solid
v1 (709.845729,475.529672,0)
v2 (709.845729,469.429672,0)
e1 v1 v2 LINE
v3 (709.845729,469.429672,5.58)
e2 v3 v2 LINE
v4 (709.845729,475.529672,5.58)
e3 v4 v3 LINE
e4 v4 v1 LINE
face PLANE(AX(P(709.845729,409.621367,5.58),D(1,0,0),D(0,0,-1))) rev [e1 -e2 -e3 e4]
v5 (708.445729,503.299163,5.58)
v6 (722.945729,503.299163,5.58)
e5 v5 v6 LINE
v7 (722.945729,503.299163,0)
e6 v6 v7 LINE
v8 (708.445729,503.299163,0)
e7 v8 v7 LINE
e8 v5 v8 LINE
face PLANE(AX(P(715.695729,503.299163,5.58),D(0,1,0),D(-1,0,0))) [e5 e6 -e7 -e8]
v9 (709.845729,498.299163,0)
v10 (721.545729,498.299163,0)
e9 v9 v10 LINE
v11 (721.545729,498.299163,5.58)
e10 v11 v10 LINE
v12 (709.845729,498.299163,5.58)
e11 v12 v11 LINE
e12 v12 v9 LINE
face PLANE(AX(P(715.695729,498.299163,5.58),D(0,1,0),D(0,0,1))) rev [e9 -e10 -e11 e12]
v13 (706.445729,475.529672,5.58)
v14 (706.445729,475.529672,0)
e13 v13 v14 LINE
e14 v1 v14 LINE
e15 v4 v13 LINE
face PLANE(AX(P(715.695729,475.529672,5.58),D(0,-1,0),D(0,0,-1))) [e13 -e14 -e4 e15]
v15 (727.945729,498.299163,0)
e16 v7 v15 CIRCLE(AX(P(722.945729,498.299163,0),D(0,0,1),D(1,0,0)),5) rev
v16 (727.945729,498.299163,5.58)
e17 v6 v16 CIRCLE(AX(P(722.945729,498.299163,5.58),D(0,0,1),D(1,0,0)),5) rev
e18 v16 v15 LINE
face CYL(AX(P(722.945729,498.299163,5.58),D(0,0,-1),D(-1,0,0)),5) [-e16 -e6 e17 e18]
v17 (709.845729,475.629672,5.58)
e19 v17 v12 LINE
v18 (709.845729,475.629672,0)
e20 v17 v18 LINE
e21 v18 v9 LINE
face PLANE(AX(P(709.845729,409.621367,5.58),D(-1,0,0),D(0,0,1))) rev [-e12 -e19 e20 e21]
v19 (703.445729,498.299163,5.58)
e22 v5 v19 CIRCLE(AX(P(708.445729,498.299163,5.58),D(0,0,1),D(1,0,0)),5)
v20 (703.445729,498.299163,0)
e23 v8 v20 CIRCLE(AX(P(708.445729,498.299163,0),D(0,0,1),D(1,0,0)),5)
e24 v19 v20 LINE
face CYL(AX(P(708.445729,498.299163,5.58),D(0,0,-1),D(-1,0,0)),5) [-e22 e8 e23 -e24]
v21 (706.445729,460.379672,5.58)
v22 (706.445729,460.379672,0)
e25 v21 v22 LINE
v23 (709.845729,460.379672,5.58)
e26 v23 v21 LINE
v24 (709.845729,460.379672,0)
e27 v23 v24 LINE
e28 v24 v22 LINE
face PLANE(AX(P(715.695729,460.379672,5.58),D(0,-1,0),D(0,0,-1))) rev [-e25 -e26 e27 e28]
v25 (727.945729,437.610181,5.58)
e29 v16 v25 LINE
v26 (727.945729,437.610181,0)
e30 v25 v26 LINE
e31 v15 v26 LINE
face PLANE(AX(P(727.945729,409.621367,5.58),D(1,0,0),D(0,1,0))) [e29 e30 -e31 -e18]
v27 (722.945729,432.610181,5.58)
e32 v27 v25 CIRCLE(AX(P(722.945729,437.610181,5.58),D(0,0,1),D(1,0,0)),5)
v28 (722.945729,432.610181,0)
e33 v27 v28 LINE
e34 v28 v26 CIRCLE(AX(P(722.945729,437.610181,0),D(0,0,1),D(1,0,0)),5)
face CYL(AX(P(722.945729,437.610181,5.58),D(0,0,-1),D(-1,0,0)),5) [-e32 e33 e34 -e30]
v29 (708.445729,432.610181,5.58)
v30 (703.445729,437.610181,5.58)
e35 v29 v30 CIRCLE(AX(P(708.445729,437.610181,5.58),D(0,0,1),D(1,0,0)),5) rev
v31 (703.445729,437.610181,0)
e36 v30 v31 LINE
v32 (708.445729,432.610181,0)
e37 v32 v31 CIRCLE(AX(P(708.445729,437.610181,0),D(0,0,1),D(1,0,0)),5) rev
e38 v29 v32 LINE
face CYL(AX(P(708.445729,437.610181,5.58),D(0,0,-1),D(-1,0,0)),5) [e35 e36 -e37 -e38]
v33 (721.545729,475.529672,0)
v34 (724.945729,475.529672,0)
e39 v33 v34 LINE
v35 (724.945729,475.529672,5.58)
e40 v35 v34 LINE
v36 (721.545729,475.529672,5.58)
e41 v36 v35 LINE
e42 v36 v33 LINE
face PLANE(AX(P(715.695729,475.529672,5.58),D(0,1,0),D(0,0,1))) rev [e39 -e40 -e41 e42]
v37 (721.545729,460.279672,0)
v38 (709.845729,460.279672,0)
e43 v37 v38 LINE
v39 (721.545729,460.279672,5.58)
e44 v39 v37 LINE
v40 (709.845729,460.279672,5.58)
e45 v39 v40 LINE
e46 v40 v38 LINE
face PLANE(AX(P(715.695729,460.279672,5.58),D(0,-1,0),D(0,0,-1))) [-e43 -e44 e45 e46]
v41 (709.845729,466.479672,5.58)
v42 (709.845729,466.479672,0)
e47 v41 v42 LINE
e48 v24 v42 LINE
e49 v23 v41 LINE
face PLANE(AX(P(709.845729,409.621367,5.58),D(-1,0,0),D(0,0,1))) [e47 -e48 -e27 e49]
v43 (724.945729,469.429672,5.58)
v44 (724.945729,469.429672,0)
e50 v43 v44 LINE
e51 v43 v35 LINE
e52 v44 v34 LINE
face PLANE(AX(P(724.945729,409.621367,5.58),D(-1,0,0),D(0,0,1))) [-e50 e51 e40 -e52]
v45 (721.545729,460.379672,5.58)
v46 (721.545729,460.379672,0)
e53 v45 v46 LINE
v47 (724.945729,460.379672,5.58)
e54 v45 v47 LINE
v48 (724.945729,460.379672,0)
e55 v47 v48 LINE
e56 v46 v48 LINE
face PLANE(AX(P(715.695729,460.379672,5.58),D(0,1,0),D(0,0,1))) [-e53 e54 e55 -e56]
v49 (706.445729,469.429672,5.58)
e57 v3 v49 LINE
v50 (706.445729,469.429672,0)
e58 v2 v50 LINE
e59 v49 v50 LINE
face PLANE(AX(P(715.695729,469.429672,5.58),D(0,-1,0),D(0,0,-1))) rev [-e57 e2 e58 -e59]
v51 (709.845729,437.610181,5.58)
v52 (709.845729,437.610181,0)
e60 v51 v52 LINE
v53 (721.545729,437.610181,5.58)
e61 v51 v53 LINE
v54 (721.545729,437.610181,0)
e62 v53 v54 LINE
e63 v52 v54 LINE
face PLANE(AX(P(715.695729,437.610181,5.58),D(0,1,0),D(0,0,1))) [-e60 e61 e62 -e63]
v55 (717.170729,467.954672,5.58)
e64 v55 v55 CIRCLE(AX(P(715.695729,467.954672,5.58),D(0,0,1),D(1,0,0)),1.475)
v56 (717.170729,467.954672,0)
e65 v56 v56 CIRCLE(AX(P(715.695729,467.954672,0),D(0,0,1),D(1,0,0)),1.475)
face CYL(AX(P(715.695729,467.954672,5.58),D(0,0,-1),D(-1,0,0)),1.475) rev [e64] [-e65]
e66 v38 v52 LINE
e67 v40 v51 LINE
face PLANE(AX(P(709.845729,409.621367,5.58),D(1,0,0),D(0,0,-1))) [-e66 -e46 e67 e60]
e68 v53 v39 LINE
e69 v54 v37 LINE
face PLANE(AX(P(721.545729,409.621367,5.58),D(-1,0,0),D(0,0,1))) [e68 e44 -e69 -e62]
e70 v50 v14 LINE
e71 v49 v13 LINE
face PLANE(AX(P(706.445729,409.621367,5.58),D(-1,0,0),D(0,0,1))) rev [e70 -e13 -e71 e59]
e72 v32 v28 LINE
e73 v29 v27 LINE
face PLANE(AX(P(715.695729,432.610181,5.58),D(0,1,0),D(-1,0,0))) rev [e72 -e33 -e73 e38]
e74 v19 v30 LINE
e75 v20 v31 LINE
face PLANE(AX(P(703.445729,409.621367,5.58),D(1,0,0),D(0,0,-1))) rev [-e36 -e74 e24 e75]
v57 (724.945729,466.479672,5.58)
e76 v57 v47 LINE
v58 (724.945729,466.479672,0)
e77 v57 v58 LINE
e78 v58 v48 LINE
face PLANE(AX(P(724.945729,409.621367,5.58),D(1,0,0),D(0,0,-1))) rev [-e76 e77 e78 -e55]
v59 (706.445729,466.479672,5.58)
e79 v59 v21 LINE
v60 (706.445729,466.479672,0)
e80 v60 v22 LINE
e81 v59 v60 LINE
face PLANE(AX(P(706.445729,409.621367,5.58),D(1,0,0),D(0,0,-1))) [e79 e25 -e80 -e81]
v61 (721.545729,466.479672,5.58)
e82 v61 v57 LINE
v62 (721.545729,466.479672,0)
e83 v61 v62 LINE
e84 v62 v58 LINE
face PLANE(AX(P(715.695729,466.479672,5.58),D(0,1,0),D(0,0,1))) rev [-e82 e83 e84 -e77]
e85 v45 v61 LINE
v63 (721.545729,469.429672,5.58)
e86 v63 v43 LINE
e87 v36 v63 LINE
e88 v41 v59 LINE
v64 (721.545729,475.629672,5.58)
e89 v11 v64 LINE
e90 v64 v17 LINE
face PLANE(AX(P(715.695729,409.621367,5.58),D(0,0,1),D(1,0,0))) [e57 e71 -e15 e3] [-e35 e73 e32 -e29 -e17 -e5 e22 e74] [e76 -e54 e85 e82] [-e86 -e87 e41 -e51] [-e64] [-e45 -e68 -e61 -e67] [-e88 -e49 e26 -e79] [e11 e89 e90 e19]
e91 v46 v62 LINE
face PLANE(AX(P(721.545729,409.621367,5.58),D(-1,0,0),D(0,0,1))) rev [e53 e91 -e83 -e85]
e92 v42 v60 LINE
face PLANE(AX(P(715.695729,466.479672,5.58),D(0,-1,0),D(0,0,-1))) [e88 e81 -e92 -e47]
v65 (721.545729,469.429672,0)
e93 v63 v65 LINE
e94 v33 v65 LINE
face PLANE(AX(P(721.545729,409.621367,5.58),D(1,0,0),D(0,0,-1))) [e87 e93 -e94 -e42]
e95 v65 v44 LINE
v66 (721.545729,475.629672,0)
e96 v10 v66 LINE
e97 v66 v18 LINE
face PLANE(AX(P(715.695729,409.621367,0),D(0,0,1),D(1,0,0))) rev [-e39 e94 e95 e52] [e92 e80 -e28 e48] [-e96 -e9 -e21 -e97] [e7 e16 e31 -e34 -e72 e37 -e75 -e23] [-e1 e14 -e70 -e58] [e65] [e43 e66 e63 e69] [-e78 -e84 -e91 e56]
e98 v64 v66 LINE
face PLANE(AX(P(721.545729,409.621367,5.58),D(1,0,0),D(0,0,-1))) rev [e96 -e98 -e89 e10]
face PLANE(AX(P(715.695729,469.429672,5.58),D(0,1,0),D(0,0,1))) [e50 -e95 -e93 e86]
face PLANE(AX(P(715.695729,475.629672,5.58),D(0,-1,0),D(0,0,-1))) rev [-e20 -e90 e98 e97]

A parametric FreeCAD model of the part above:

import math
import FreeCAD as App
import Part
import Sketcher

V = App.Vector

doc = App.newDocument("Part")
body = doc.addObject("PartDesign::Body", "Body")

# Sketch on XY plane
sketch1 = body.newObject("Sketcher::SketchObject", "Sketch")
sketch1.AttachmentSupport = (doc.getObject("XY_Plane"), [""])
sketch1.MapMode = "FlatFace"
sketch1.addGeometry(Part.LineSegment(V(708.4, 432.6, 0), V(722.9, 432.6, 0)), False)
sketch1.addGeometry(Part.ArcOfCircle(Part.Circle(V(722.9, 437.6, 0), V(0, 0, 1), 5), math.radians(-90), math.radians(0)), False)
sketch1.addGeometry(Part.LineSegment(V(727.9, 437.6, 0), V(727.9, 498.3, 0)), False)
sketch1.addGeometry(Part.ArcOfCircle(Part.Circle(V(722.9, 498.3, 0), V(0, 0, 1), 5), math.radians(0), math.radians(90)), False)
sketch1.addGeometry(Part.LineSegment(V(722.9, 503.3, 0), V(708.4, 503.3, 0)), False)
sketch1.addGeometry(Part.ArcOfCircle(Part.Circle(V(708.4, 498.3, 0), V(0, 0, 1), 5), math.radians(90), math.radians(180)), False)
sketch1.addGeometry(Part.LineSegment(V(703.4, 498.3, 0), V(703.4, 437.6, 0)), False)
sketch1.addGeometry(Part.ArcOfCircle(Part.Circle(V(708.4, 437.6, 0), V(0, 0, 1), 5), math.radians(180), math.radians(270)), False)
sketch1.addGeometry(Part.LineSegment(V(709.8, 460.4, 0), V(706.4, 460.4, 0)), False)
sketch1.addGeometry(Part.LineSegment(V(706.4, 460.4, 0), V(706.4, 466.5, 0)), False)
sketch1.addGeometry(Part.LineSegment(V(706.4, 466.5, 0), V(709.8, 466.5, 0)), False)
sketch1.addGeometry(Part.LineSegment(V(709.8, 466.5, 0), V(709.8, 460.4, 0)), False)
sketch1.addGeometry(Part.LineSegment(V(721.5, 437.6, 0), V(709.8, 437.6, 0)), False)
sketch1.addGeometry(Part.LineSegment(V(709.8, 437.6, 0), V(709.8, 460.3, 0)), False)
sketch1.addGeometry(Part.LineSegment(V(709.8, 460.3, 0), V(721.5, 460.3, 0)), False)
sketch1.addGeometry(Part.LineSegment(V(721.5, 460.3, 0), V(721.5, 437.6, 0)), False)
sketch1.addGeometry(Part.LineSegment(V(724.9, 460.4, 0), V(721.5, 460.4, 0)), False)
sketch1.addGeometry(Part.LineSegment(V(721.5, 460.4, 0), V(721.5, 466.5, 0)), False)
sketch1.addGeometry(Part.LineSegment(V(721.5, 466.5, 0), V(724.9, 466.5, 0)), False)
sketch1.addGeometry(Part.LineSegment(V(724.9, 466.5, 0), V(724.9, 460.4, 0)), False)
sketch1.addGeometry(Part.LineSegment(V(709.8, 469.4, 0), V(706.4, 469.4, 0)), False)
sketch1.addGeometry(Part.LineSegment(V(706.4, 469.4, 0), V(706.4, 475.5, 0)), False)
sketch1.addGeometry(Part.LineSegment(V(706.4, 475.5, 0), V(709.8, 475.5, 0)), False)
sketch1.addGeometry(Part.LineSegment(V(709.8, 475.5, 0), V(709.8, 469.4, 0)), False)
sketch1.addGeometry(Part.Circle(V(715.7, 468, 0), V(0, 0, 1), 1.5), False)
sketch1.addGeometry(Part.LineSegment(V(724.9, 469.4, 0), V(721.5, 469.4, 0)), False)
sketch1.addGeometry(Part.LineSegment(V(721.5, 469.4, 0), V(721.5, 475.5, 0)), False)
sketch1.addGeometry(Part.LineSegment(V(721.5, 475.5, 0), V(724.9, 475.5, 0)), False)
sketch1.addGeometry(Part.LineSegment(V(724.9, 475.5, 0), V(724.9, 469.4, 0)), False)
sketch1.addGeometry(Part.LineSegment(V(721.5, 475.6, 0), V(709.8, 475.6, 0)), False)
sketch1.addGeometry(Part.LineSegment(V(709.8, 475.6, 0), V(709.8, 498.3, 0)), False)
sketch1.addGeometry(Part.LineSegment(V(709.8, 498.3, 0), V(721.5, 498.3, 0)), False)
sketch1.addGeometry(Part.LineSegment(V(721.5, 498.3, 0), V(721.5, 475.6, 0)), False)
sketch1.addConstraint(Sketcher.Constraint("Tangent", 0, 2, 1, 1))
sketch1.addConstraint(Sketcher.Constraint("Tangent", 1, 2, 2, 1))
sketch1.addConstraint(Sketcher.Constraint("Tangent", 2, 2, 3, 1))
sketch1.addConstraint(Sketcher.Constraint("Tangent", 3, 2, 4, 1))
sketch1.addConstraint(Sketcher.Constraint("Tangent", 4, 2, 5, 1))
sketch1.addConstraint(Sketcher.Constraint("Tangent", 5, 2, 6, 1))
sketch1.addConstraint(Sketcher.Constraint("Tangent", 6, 2, 7, 1))
sketch1.addConstraint(Sketcher.Constraint("Tangent", 7, 2, 0, 1))
sketch1.addConstraint(Sketcher.Constraint("Coincident", 8, 2, 9, 1))
sketch1.addConstraint(Sketcher.Constraint("Coincident", 9, 2, 10, 1))
sketch1.addConstraint(Sketcher.Constraint("Coincident", 10, 2, 11, 1))
sketch1.addConstraint(Sketcher.Constraint("Coincident", 11, 2, 8, 1))
sketch1.addConstraint(Sketcher.Constraint("Coincident", 12, 2, 13, 1))
sketch1.addConstraint(Sketcher.Constraint("Coincident", 13, 2, 14, 1))
sketch1.addConstraint(Sketcher.Constraint("Coincident", 14, 2, 15, 1))
sketch1.addConstraint(Sketcher.Constraint("Coincident", 15, 2, 12, 1))
sketch1.addConstraint(Sketcher.Constraint("Coincident", 16, 2, 17, 1))
sketch1.addConstraint(Sketcher.Constraint("Coincident", 17, 2, 18, 1))
sketch1.addConstraint(Sketcher.Constraint("Coincident", 18, 2, 19, 1))
sketch1.addConstraint(Sketcher.Constraint("Coincident", 19, 2, 16, 1))
sketch1.addConstraint(Sketcher.Constraint("Coincident", 20, 2, 21, 1))
sketch1.addConstraint(Sketcher.Constraint("Coincident", 21, 2, 22, 1))
sketch1.addConstraint(Sketcher.Constraint("Coincident", 22, 2, 23, 1))
sketch1.addConstraint(Sketcher.Constraint("Coincident", 23, 2, 20, 1))
sketch1.addConstraint(Sketcher.Constraint("Coincident", 25, 2, 26, 1))
sketch1.addConstraint(Sketcher.Constraint("Coincident", 26, 2, 27, 1))
sketch1.addConstraint(Sketcher.Constraint("Coincident", 27, 2, 28, 1))
sketch1.addConstraint(Sketcher.Constraint("Coincident", 28, 2, 25, 1))
sketch1.addConstraint(Sketcher.Constraint("Coincident", 29, 2, 30, 1))
sketch1.addConstraint(Sketcher.Constraint("Coincident", 30, 2, 31, 1))
sketch1.addConstraint(Sketcher.Constraint("Coincident", 31, 2, 32, 1))
sketch1.addConstraint(Sketcher.Constraint("Coincident", 32, 2, 29, 1))
sketch1.addConstraint(Sketcher.Constraint("Horizontal", 0))
sketch1.addConstraint(Sketcher.Constraint("Vertical", 2))
sketch1.addConstraint(Sketcher.Constraint("Horizontal", 4))
sketch1.addConstraint(Sketcher.Constraint("Vertical", 6))
sketch1.addConstraint(Sketcher.Constraint("Horizontal", 8))
sketch1.addConstraint(Sketcher.Constraint("Vertical", 9))
sketch1.addConstraint(Sketcher.Constraint("Horizontal", 10))
sketch1.addConstraint(Sketcher.Constraint("Vertical", 11))
sketch1.addConstraint(Sketcher.Constraint("Horizontal", 12))
sketch1.addConstraint(Sketcher.Constraint("Vertical", 13))
sketch1.addConstraint(Sketcher.Constraint("Horizontal", 14))
sketch1.addConstraint(Sketcher.Constraint("Vertical", 15))
sketch1.addConstraint(Sketcher.Constraint("Horizontal", 16))
sketch1.addConstraint(Sketcher.Constraint("Vertical", 17))
sketch1.addConstraint(Sketcher.Constraint("Horizontal", 18))
sketch1.addConstraint(Sketcher.Constraint("Vertical", 19))
sketch1.addConstraint(Sketcher.Constraint("Horizontal", 20))
sketch1.addConstraint(Sketcher.Constraint("Vertical", 21))
sketch1.addConstraint(Sketcher.Constraint("Horizontal", 22))
sketch1.addConstraint(Sketcher.Constraint("Vertical", 23))
sketch1.addConstraint(Sketcher.Constraint("Horizontal", 25))
sketch1.addConstraint(Sketcher.Constraint("Vertical", 26))
sketch1.addConstraint(Sketcher.Constraint("Horizontal", 27))
sketch1.addConstraint(Sketcher.Constraint("Vertical", 28))
sketch1.addConstraint(Sketcher.Constraint("Horizontal", 29))
sketch1.addConstraint(Sketcher.Constraint("Vertical", 30))
sketch1.addConstraint(Sketcher.Constraint("Horizontal", 31))
sketch1.addConstraint(Sketcher.Constraint("Vertical", 32))
sketch1.addConstraint(Sketcher.Constraint("Equal", 1, 3))
sketch1.addConstraint(Sketcher.Constraint("Equal", 3, 5))
sketch1.addConstraint(Sketcher.Constraint("Equal", 5, 7))
sketch1.addConstraint(Sketcher.Constraint("Horizontal", 6, 2, 12, 2))
sketch1.addConstraint(Sketcher.Constraint("Horizontal", 11, 2, 16, 2))
sketch1.addConstraint(Sketcher.Constraint("Horizontal", 10, 2, 17, 2))
sketch1.addConstraint(Sketcher.Constraint("Horizontal", 23, 2, 25, 2))
sketch1.addConstraint(Sketcher.Constraint("Horizontal", 22, 2, 26, 2))
sketch1.addConstraint(Sketcher.Constraint("Horizontal", 5, 2, 30, 2))
sketch1.addConstraint(Sketcher.Constraint("Vertical", 11, 2, 12, 2))
sketch1.addConstraint(Sketcher.Constraint("Vertical", 15, 2, 16, 2))
sketch1.addConstraint(Sketcher.Constraint("Vertical", 9, 2, 20, 2))
sketch1.addConstraint(Sketcher.Constraint("Vertical", 13, 2, 22, 2))
sketch1.addConstraint(Sketcher.Constraint("Vertical", 17, 2, 25, 2))
sketch1.addConstraint(Sketcher.Constraint("Vertical", 19, 2, 27, 2))
sketch1.addConstraint(Sketcher.Constraint("Vertical", 23, 2, 29, 2))
sketch1.addConstraint(Sketcher.Constraint("Vertical", 26, 2, 31, 2))
sketch1.addConstraint(Sketcher.Constraint("Equal", 10, 16))
sketch1.addConstraint(Sketcher.Constraint("Equal", 19, 21))
sketch1.addConstraint(Sketcher.Constraint("Equal", 15, 30))
sketch1.addConstraint(Sketcher.Constraint("Radius", 1, 5.0))
sketch1.addConstraint(Sketcher.Constraint("Diameter", 24, 2.95))
sketch1.addConstraint(Sketcher.Constraint("DistanceX", 0, 1, 0, 2, 14.5))
sketch1.addConstraint(Sketcher.Constraint("DistanceX", 8, 2, 8, 1, 3.4))
sketch1.addConstraint(Sketcher.Constraint("DistanceX", 12, 2, 12, 1, 11.7))
sketch1.addConstraint(Sketcher.Constraint("DistanceY", 9, 1, 9, 2, 6.1))
sketch1.addConstraint(Sketcher.Constraint("DistanceX", 8, 2, 7, 3, 2.0))
sketch1.addConstraint(Sketcher.Constraint("DistanceY", 13, 2, 11, 2, 0.1))
sketch1.addConstraint(Sketcher.Constraint("DistanceY", 22, 2, 29, 2, 0.1))
sketch1.addConstraint(Sketcher.Constraint("DistanceX", 24, 3, 3, 3, 7.25))
sketch1.addConstraint(Sketcher.Constraint("DistanceY", 9, 2, 20, 2, 2.95))
sketch1.addConstraint(Sketcher.Constraint("DistanceY", 8, 2, 24, 3, 7.575))
sketch1.addConstraint(Sketcher.Constraint("DistanceY", 13, 1, 13, 2, 22.669491))
sketch1.addConstraint(Sketcher.Constraint("DistanceX", -1, 1, 1, 3, 722.945729))
sketch1.addConstraint(Sketcher.Constraint("DistanceY", -1, 1, 1, 3, 437.610181))
pad1 = body.newObject("PartDesign::Pad", "Pad")
pad1.Profile = sketch1
pad1.Length = 5.58

doc.recompute()
